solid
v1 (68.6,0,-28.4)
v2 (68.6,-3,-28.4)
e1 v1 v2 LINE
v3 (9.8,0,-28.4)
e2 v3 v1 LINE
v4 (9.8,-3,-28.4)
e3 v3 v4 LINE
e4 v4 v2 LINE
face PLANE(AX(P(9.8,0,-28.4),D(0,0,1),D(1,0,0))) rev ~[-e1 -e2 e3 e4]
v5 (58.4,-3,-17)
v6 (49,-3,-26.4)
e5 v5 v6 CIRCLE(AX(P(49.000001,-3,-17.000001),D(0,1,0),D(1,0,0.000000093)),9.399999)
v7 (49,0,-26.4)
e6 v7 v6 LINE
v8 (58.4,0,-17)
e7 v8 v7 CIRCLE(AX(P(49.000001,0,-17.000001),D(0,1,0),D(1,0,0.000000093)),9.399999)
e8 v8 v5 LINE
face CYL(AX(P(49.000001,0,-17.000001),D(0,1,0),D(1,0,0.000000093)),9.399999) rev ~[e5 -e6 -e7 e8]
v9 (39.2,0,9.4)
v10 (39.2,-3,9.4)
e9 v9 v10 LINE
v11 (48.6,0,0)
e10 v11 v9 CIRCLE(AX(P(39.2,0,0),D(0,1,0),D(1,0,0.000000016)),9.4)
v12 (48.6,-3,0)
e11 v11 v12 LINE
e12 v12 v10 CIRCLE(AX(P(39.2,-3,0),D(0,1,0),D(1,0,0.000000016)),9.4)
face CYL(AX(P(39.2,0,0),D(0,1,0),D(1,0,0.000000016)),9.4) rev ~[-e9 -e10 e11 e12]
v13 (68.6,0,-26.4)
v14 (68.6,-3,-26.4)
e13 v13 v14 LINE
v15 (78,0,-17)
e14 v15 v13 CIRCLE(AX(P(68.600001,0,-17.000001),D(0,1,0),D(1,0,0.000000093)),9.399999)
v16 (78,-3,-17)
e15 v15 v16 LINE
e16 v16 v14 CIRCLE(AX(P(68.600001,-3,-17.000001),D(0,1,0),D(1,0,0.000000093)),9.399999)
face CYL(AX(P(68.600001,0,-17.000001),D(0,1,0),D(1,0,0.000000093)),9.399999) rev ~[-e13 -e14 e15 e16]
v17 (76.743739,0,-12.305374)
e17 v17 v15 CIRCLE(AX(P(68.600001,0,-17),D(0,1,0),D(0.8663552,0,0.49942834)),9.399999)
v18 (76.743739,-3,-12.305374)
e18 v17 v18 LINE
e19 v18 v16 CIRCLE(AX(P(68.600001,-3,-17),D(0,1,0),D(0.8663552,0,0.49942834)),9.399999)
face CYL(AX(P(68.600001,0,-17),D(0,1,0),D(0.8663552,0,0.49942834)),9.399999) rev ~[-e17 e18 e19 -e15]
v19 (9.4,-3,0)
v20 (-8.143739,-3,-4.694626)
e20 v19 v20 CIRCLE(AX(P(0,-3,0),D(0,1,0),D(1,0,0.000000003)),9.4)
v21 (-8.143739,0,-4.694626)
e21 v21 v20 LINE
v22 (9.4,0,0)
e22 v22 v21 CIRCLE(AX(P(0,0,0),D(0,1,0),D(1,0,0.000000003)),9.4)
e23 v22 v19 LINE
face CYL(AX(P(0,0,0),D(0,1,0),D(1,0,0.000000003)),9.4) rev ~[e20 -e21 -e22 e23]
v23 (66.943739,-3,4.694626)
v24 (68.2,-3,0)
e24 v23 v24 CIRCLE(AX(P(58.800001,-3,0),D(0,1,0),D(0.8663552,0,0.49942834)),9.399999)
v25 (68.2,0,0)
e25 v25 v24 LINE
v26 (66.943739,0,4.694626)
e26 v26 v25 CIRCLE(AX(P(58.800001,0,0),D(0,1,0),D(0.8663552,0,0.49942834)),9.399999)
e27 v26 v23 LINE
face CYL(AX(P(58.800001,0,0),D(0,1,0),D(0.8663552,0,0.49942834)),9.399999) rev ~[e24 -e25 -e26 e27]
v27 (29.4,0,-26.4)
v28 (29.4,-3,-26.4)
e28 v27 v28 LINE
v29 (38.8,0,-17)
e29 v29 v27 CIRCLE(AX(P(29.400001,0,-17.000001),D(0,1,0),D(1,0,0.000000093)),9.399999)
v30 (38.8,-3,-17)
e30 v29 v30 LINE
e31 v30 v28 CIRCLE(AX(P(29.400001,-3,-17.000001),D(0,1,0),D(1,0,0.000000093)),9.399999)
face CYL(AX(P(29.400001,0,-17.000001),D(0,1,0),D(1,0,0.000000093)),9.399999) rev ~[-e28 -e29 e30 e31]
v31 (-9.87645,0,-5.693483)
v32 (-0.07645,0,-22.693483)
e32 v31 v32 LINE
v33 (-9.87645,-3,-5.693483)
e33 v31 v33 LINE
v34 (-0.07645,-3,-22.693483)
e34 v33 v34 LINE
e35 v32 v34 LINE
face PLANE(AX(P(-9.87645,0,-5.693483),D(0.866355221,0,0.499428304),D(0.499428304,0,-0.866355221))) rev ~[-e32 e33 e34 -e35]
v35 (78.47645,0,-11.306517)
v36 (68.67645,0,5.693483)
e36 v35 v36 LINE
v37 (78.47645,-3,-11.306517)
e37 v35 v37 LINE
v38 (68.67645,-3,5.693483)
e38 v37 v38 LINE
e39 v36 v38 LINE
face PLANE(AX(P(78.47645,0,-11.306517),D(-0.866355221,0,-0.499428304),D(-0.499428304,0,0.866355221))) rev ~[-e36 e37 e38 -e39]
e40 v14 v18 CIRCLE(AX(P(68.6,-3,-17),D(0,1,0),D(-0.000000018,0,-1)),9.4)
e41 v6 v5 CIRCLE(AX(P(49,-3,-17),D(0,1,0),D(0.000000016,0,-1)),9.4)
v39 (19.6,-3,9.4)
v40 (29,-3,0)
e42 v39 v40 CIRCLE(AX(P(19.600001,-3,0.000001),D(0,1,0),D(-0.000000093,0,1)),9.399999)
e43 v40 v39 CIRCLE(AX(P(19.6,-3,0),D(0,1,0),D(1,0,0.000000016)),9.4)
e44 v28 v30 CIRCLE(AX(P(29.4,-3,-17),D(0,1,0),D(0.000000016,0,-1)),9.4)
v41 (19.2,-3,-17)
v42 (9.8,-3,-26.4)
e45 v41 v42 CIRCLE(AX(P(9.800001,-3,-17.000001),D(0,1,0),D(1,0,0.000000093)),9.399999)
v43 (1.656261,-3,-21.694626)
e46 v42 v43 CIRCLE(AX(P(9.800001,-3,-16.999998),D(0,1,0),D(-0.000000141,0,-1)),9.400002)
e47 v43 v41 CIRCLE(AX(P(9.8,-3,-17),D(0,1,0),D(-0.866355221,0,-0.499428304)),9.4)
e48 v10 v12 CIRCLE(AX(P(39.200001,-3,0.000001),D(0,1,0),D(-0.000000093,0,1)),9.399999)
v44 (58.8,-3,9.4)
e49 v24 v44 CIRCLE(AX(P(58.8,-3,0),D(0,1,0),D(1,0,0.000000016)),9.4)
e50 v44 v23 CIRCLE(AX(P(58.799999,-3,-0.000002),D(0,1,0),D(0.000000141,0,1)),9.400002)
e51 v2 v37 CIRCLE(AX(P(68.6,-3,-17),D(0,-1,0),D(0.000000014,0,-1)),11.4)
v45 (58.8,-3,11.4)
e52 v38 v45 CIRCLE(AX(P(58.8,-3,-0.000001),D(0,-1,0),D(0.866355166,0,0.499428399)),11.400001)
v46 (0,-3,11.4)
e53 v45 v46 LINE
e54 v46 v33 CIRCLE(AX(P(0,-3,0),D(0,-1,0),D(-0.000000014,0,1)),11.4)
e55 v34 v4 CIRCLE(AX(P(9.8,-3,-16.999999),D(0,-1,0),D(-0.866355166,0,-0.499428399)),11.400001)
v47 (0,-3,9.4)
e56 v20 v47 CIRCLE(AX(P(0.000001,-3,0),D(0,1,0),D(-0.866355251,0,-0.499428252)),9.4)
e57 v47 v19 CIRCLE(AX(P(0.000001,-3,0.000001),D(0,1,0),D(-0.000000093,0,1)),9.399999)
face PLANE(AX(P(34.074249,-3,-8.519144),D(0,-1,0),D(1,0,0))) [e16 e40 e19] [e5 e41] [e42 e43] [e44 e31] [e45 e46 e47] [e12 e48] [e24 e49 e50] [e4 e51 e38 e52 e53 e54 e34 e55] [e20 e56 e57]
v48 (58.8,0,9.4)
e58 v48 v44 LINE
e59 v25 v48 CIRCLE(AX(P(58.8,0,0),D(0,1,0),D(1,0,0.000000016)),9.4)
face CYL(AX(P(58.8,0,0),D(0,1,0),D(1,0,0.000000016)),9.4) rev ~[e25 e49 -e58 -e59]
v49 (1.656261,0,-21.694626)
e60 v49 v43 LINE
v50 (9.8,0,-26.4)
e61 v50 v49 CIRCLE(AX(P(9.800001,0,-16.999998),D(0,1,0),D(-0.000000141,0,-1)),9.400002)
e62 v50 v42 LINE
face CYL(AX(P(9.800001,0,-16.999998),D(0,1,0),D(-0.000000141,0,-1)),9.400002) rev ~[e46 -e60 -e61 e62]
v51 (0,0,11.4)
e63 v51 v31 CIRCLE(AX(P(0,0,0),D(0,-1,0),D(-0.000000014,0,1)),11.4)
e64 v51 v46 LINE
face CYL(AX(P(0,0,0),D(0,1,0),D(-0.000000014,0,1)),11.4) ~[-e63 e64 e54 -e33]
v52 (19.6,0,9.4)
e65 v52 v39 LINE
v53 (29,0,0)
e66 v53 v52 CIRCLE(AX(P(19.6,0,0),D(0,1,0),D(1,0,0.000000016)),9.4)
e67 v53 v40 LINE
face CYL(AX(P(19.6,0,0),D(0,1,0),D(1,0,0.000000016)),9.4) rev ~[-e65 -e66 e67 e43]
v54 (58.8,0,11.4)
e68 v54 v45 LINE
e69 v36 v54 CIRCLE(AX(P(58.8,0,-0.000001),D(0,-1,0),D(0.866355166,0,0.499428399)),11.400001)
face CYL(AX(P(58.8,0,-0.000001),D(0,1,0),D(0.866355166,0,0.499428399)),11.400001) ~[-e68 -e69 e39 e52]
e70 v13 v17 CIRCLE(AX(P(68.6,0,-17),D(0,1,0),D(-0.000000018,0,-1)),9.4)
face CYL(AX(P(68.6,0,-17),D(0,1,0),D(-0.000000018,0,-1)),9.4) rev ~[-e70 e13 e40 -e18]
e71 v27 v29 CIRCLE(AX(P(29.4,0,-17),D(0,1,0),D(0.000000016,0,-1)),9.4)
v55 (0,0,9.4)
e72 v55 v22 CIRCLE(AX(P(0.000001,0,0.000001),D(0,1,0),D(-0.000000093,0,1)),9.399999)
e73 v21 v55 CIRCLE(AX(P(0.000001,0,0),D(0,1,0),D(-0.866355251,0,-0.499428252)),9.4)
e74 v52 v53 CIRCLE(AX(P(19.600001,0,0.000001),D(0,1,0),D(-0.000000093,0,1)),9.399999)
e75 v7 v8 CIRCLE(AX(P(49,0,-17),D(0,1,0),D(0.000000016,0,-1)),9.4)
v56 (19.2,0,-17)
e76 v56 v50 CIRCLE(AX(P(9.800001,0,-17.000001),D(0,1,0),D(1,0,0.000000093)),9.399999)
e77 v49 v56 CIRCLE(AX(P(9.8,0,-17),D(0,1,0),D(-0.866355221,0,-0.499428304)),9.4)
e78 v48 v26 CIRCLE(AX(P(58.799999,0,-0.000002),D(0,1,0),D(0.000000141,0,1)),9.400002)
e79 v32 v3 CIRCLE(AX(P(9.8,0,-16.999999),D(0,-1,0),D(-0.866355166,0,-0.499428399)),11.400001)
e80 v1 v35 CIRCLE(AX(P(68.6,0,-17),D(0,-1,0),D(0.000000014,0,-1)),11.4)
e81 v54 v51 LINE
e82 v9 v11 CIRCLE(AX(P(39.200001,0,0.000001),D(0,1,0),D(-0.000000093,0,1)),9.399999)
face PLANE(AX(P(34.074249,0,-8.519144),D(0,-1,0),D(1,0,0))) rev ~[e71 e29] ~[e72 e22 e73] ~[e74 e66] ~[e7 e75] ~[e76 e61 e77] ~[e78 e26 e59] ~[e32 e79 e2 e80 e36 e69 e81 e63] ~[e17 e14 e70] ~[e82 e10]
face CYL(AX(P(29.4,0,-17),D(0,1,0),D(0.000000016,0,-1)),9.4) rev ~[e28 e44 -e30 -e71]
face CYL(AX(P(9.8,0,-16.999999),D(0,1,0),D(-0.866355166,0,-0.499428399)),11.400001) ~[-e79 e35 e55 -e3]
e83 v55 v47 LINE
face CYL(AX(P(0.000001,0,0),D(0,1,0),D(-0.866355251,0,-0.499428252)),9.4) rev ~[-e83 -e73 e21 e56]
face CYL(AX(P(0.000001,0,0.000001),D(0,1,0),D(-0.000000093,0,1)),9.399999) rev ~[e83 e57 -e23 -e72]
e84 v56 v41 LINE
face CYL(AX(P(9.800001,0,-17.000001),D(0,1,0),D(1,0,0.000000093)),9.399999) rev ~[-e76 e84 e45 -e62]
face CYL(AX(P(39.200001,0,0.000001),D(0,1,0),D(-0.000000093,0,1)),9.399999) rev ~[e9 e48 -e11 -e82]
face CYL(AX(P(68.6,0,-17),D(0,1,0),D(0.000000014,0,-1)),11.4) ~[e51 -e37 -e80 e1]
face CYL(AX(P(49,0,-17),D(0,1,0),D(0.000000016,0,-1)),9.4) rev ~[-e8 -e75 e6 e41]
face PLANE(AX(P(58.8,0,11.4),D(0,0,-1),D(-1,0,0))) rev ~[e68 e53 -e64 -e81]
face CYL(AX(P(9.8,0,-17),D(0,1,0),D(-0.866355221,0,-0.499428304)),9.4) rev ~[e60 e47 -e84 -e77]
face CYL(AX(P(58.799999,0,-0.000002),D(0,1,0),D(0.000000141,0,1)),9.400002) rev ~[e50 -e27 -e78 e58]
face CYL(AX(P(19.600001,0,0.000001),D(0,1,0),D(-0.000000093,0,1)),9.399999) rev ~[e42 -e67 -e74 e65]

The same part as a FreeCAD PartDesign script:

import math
import FreeCAD as App
import Part
import Sketcher

V = App.Vector
Q = App.Units.Quantity

doc = App.newDocument("Part")
body = doc.addObject("PartDesign::Body", "Body")

# Sketch on XZ plane
sketch1 = body.newObject("Sketcher::SketchObject", "Sketch")
sketch1.AttachmentSupport = (doc.getObject("XZ_Plane"), [""])
sketch1.MapMode = "FlatFace"
sketch1.addGeometry([
    Part.LineSegment(V(58.8, 11.4, 0), V(0, 11.4, 0)),  # 0
    Part.ArcOfCircle(Part.Circle(V(0, 0, 0), V(0, 0, 1), 11.4), math.radians(90.000001), math.radians(209.962182)),  # 1
    Part.LineSegment(V(-9.87645, -5.693483, 0), V(-0.07645, -22.693483, 0)),  # 2
    Part.ArcOfCircle(Part.Circle(V(9.8, -16.999999, 0), V(0, 0, 1), 11.400001), math.radians(-150.03781), math.radians(-90.000001)),  # 3
    Part.LineSegment(V(9.8, -28.4, 0), V(68.6, -28.4, 0)),  # 4
    Part.ArcOfCircle(Part.Circle(V(68.6, -17, 0), V(0, 0, 1), 11.4), math.radians(-89.999999), math.radians(29.962182)),  # 5
    Part.LineSegment(V(78.47645, -11.306517, 0), V(68.67645, 5.693483, 0)),  # 6
    Part.ArcOfCircle(Part.Circle(V(58.8, -0.000001, 0), V(0, 0, 1), 11.400001), math.radians(29.96219), math.radians(89.999999)),  # 7
    Part.ArcOfCircle(Part.Circle(V(9.800001, -16.999998, 0), V(0, 0, 1), 9.400002), math.radians(-150.037809), math.radians(-90.000008)),  # 8
    Part.ArcOfCircle(Part.Circle(V(9.8, -17, 0), V(0, 0, 1), 9.4), math.radians(0), math.radians(209.962184)),  # 9
    Part.ArcOfCircle(Part.Circle(V(9.800001, -17.000001, 0), V(0, 0, 1), 9.399999), math.radians(-90.000005), math.radians(0.000005)),  # 10
    Part.ArcOfCircle(Part.Circle(V(29.4, -17, 0), V(0, 0, 1), 9.4), math.radians(-0.000001), math.radians(270.000001)),  # 11
    Part.ArcOfCircle(Part.Circle(V(29.400001, -17.000001, 0), V(0, 0, 1), 9.399999), math.radians(-90.000005), math.radians(0.000005)),  # 12
    Part.ArcOfCircle(Part.Circle(V(49, -17, 0), V(0, 0, 1), 9.4), math.radians(-0.000001), math.radians(270.000001)),  # 13
    Part.ArcOfCircle(Part.Circle(V(49.000001, -17.000001, 0), V(0, 0, 1), 9.399999), math.radians(-90.000005), math.radians(0.000005)),  # 14
    Part.ArcOfCircle(Part.Circle(V(68.600001, -17.000001, 0), V(0, 0, 1), 9.399999), math.radians(-90.000005), math.radians(0.000005)),  # 15
    Part.ArcOfCircle(Part.Circle(V(68.6, -17, 0), V(0, 0, 1), 9.4), math.radians(29.962185), math.radians(269.999999)),  # 16
    Part.ArcOfCircle(Part.Circle(V(68.600001, -17, 0), V(0, 0, 1), 9.399999), math.radians(0), math.radians(29.962187)),  # 17
    Part.ArcOfCircle(Part.Circle(V(0.000001, 0, 0), V(0, 0, 1), 9.4), math.radians(90.000004), math.radians(209.962181)),  # 18
    Part.ArcOfCircle(Part.Circle(V(0.000001, 0.000001, 0), V(0, 0, 1), 9.399999), math.radians(-0.000005), math.radians(90.000005)),  # 19
    Part.ArcOfCircle(Part.Circle(V(0, 0, 0), V(0, 0, 1), 9.4), math.radians(-150.037816), math.radians(0)),  # 20
    Part.ArcOfCircle(Part.Circle(V(19.600001, 0.000001, 0), V(0, 0, 1), 9.399999), math.radians(-0.000005), math.radians(90.000005)),  # 21
    Part.ArcOfCircle(Part.Circle(V(19.6, 0, 0), V(0, 0, 1), 9.4), math.radians(89.999999), math.radians(360.000001)),  # 22
    Part.ArcOfCircle(Part.Circle(V(39.200001, 0.000001, 0), V(0, 0, 1), 9.399999), math.radians(-0.000005), math.radians(90.000005)),  # 23
    Part.ArcOfCircle(Part.Circle(V(39.2, 0, 0), V(0, 0, 1), 9.4), math.radians(89.999999), math.radians(360.000001)),  # 24
    Part.ArcOfCircle(Part.Circle(V(58.799999, -0.000002, 0), V(0, 0, 1), 9.400002), math.radians(29.962191), math.radians(89.999992)),  # 25
    Part.ArcOfCircle(Part.Circle(V(58.800001, 0, 0), V(0, 0, 1), 9.399999), math.radians(0), math.radians(29.962187)),  # 26
    Part.ArcOfCircle(Part.Circle(V(58.8, 0, 0), V(0, 0, 1), 9.4), math.radians(89.999999), math.radians(360.000001)),  # 27
], False)
sketch1.addConstraint([
    Sketcher.Constraint("Tangent", 0, 2, 1, 1),
    Sketcher.Constraint("Tangent", 1, 2, 2, 1),
    Sketcher.Constraint("Tangent", 2, 2, 3, 1),
    Sketcher.Constraint("Tangent", 3, 2, 4, 1),
    Sketcher.Constraint("Tangent", 4, 2, 5, 1),
    Sketcher.Constraint("Tangent", 5, 2, 6, 1),
    Sketcher.Constraint("Tangent", 6, 2, 7, 1),
    Sketcher.Constraint("Tangent", 7, 2, 0, 1),
    Sketcher.Constraint("Tangent", 8, 1, 9, 2),
    Sketcher.Constraint("Tangent", 9, 1, 10, 2),
    Sketcher.Constraint("Tangent", 10, 1, 8, 2),
    Sketcher.Constraint("Tangent", 11, 1, 12, 2),
    Sketcher.Constraint("Coincident", 12, 1, 11, 2),
    Sketcher.Constraint("Tangent", 13, 1, 14, 2),
    Sketcher.Constraint("Coincident", 14, 1, 13, 2),
    Sketcher.Constraint("Tangent", 15, 1, 16, 2),
    Sketcher.Constraint("Tangent", 16, 1, 17, 2),
    Sketcher.Constraint("Tangent", 17, 1, 15, 2),
    Sketcher.Constraint("Tangent", 18, 1, 19, 2),
    Sketcher.Constraint("Tangent", 19, 1, 20, 2),
    Sketcher.Constraint("Tangent", 20, 1, 18, 2),
    Sketcher.Constraint("Tangent", 21, 1, 22, 2),
    Sketcher.Constraint("Coincident", 22, 1, 21, 2),
    Sketcher.Constraint("Tangent", 23, 1, 24, 2),
    Sketcher.Constraint("Coincident", 24, 1, 23, 2),
    Sketcher.Constraint("Tangent", 25, 1, 26, 2),
    Sketcher.Constraint("Tangent", 26, 1, 27, 2),
    Sketcher.Constraint("Tangent", 27, 1, 25, 2),
    Sketcher.Constraint("Horizontal", 0),
    Sketcher.Constraint("Horizontal", 4),
    Sketcher.Constraint("Coincident", 1, 3, -1, 1),
    Sketcher.Constraint("Coincident", 18, 3, -1, 1),
    Sketcher.Constraint("Coincident", 8, 3, 3, 3),
    Sketcher.Constraint("Coincident", 15, 3, 5, 3),
    Sketcher.Constraint("Coincident", 25, 3, 7, 3),
    Sketcher.Constraint("Equal", 1, 3),
    Sketcher.Constraint("Equal", 3, 5),
    Sketcher.Constraint("Equal", 5, 7),
    Sketcher.Constraint("Equal", 10, 11),
    Sketcher.Constraint("Equal", 12, 13),
    Sketcher.Constraint("Equal", 14, 15),
    Sketcher.Constraint("Equal", 17, 18),
    Sketcher.Constraint("Equal", 20, 21),
    Sketcher.Constraint("Equal", 22, 23),
    Sketcher.Constraint("Equal", 24, 25),
    Sketcher.Constraint("PointOnObject", 21, 3, -1),
    Sketcher.Constraint("PointOnObject", 23, 3, -1),
    Sketcher.Constraint("PointOnObject", 18, 1, -2),
    Sketcher.Constraint("PointOnObject", 19, 1, -1),
    Sketcher.Constraint("PointOnObject", 21, 1, -1),
    Sketcher.Constraint("PointOnObject", 23, 1, -1),
    Sketcher.Constraint("PointOnObject", 26, 1, -1),
    Sketcher.Constraint("Parallel", 2, 6),
    Sketcher.Constraint("Horizontal", 10, 3, 11, 3),
    Sketcher.Constraint("Horizontal", 12, 3, 13, 3),
    Sketcher.Constraint("Horizontal", 17, 3, 9, 1),
    Sketcher.Constraint("Horizontal", 9, 1, 11, 1),
    Sketcher.Constraint("Horizontal", 11, 1, 13, 1),
    Sketcher.Constraint("Horizontal", 13, 1, 17, 1),
    Sketcher.Constraint("Vertical", 3, 2, 10, 1),
    Sketcher.Constraint("Vertical", 11, 3, 12, 1),
    Sketcher.Constraint("Vertical", 13, 3, 14, 1),
    Sketcher.Constraint("Vertical", 4, 2, 15, 1),
    Sketcher.Constraint("Vertical", 21, 3, 22, 1),
    Sketcher.Constraint("Vertical", 23, 3, 24, 1),
    Sketcher.Constraint("Vertical", 7, 2, 27, 1),
    Sketcher.Constraint("Radius", 1, Q("11.4 mm")),
    Sketcher.Constraint("Radius", 9, Q("9.4 mm")),
    Sketcher.Constraint("DistanceX", 0, 2, 0, 1, Q("58.8 mm")),
    Sketcher.Constraint("DistanceY", 3, 3, -1, 1, Q("16.999999 mm")),
    Sketcher.Constraint("DistanceX", -1, 1, 13, 3, Q("49 mm")),
    Sketcher.Constraint("DistanceX", -1, 1, 17, 1, Q("78 mm")),
    Sketcher.Constraint("DistanceX", -1, 1, 21, 1, Q("29 mm")),
    Sketcher.Constraint("DistanceX", -1, 1, 11, 3, Q("29.4 mm")),
    Sketcher.Constraint("DistanceX", -1, 1, 23, 3, Q("39.200001 mm")),
    Sketcher.Constraint("DistanceX", -1, 1, 8, 1, Q("1.656261 mm")),
    Sketcher.Constraint("DistanceX", -1, 1, 16, 1, Q("76.743739 mm")),
    Sketcher.Constraint("DistanceX", 20, 1, -1, 1, Q("8.143739 mm")),
    Sketcher.Constraint("DistanceX", -1, 1, 25, 1, Q("66.943739 mm")),
])
pad1 = body.newObject("PartDesign::Pad", "Pad")
pad1.Profile = sketch1
pad1.Length = 3

doc.recompute()
